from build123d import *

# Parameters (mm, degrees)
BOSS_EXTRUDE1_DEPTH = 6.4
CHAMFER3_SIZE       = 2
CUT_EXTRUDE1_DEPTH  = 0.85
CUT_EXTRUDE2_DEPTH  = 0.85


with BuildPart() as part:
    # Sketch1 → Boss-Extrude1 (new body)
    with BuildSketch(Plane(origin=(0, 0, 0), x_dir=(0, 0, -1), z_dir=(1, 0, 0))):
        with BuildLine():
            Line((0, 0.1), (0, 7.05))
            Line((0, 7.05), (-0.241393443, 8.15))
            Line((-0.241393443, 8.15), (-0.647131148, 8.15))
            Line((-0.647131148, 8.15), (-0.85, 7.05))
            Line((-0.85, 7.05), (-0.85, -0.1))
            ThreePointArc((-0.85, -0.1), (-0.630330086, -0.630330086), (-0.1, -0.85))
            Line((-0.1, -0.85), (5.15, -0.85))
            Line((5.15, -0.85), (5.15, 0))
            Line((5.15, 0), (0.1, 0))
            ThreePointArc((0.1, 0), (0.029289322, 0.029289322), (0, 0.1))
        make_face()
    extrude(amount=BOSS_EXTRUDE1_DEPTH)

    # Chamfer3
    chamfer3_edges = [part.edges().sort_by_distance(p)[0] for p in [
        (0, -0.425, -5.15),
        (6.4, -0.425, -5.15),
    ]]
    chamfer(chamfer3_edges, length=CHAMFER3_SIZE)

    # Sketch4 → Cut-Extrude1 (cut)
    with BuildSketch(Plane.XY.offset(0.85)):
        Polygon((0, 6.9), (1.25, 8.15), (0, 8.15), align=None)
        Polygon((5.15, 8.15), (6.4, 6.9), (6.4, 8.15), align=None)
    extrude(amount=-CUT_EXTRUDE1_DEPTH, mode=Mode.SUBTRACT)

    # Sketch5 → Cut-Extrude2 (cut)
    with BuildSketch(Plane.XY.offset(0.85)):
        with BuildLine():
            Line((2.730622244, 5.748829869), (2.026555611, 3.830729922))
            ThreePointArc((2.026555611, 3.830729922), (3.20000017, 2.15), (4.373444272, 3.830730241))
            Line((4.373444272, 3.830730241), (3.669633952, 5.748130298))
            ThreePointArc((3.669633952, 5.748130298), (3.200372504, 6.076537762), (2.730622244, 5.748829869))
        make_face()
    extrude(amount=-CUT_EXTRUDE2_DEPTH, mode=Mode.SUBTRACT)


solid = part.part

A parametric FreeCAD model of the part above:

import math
import FreeCAD as App
import Part
import Sketcher
from FreeCAD import Vector


def edges_at(feature, points):
    """Names of the edges that pass closest to the given points."""
    edges = feature.Shape.Edges
    near = lambda p: min(range(len(edges)), key=lambda i: edges[i].distToShape(Part.Vertex(*p))[0])
    return sorted({f"Edge{near(p) + 1}" for p in points})

doc = App.newDocument("Part")
body = doc.addObject("PartDesign::Body", "Body")

# Sketch on YZ plane
sketch1 = body.newObject("Sketcher::SketchObject", "Sketch")
sketch1.AttachmentSupport = (doc.getObject("YZ_Plane"), [""])
sketch1.MapMode = "FlatFace"
sketch1.addGeometry([
    Part.LineSegment(Vector(0.1, 0, 0), Vector(7.05, 0, 0)),  # 0
    Part.LineSegment(Vector(7.05, 0, 0), Vector(8.15, 0.24, 0)),  # 1
    Part.LineSegment(Vector(8.15, 0.24, 0), Vector(8.15, 0.65, 0)),  # 2
    Part.LineSegment(Vector(8.15, 0.65, 0), Vector(7.05, 0.85, 0)),  # 3
    Part.LineSegment(Vector(7.05, 0.85, 0), Vector(-0.1, 0.85, 0)),  # 4
    Part.ArcOfCircle(Part.Circle(Vector(-0.1, 0.1, 0), Vector(0, 0, 1), 0.75), math.radians(90), math.radians(180)),  # 5
    Part.LineSegment(Vector(-0.85, 0.1, 0), Vector(-0.85, -5.15, 0)),  # 6
    Part.LineSegment(Vector(-0.85, -5.15, 0), Vector(0, -5.15, 0)),  # 7
    Part.LineSegment(Vector(0, -5.15, 0), Vector(0, -0.1, 0)),  # 8
    Part.ArcOfCircle(Part.Circle(Vector(0.1, -0.1, 0), Vector(0, 0, 1), 0.1), math.radians(90), math.radians(180)),  # 9
], False)
sketch1.addConstraint([
    Sketcher.Constraint("Coincident", 0, 2, 1, 1),
    Sketcher.Constraint("Coincident", 1, 2, 2, 1),
    Sketcher.Constraint("Coincident", 2, 2, 3, 1),
    Sketcher.Constraint("Coincident", 3, 2, 4, 1),
    Sketcher.Constraint("Tangent", 4, 2, 5, 1),
    Sketcher.Constraint("Tangent", 5, 2, 6, 1),
    Sketcher.Constraint("Coincident", 6, 2, 7, 1),
    Sketcher.Constraint("Coincident", 7, 2, 8, 1),
    Sketcher.Constraint("Tangent", 8, 2, 9, 2),
    Sketcher.Constraint("Tangent", 9, 1, 0, 1),
    Sketcher.Constraint("Horizontal", 0),
    Sketcher.Constraint("Vertical", 2),
    Sketcher.Constraint("Horizontal", 4),
    Sketcher.Constraint("Vertical", 6),
    Sketcher.Constraint("Horizontal", 7),
    Sketcher.Constraint("Vertical", 8),
    Sketcher.Constraint("Symmetric", 5, 3, 9, 3, -1, 1),
    Sketcher.Constraint("PointOnObject", 0, 2, -1),
    Sketcher.Constraint("PointOnObject", 7, 2, -2),
    Sketcher.Constraint("Vertical", 0, 2, 3, 2),
    Sketcher.Constraint("Radius", 9, 0.1),
    Sketcher.Constraint("Radius", 5, 0.75),
    Sketcher.Constraint("DistanceY", 6, 2, 4, 2, 6.0),
    Sketcher.Constraint("DistanceX", 0, 1, 0, 2, 6.95),
    Sketcher.Constraint("DistanceX", 0, 2, 1, 2, 1.1),
    Sketcher.Constraint("Distance", 3, 1.118551),
    Sketcher.Constraint("DistanceY", 2, 1, 2, 2, 0.405738),
])
pad1 = body.newObject("PartDesign::Pad", "Pad")
pad1.Profile = sketch1
pad1.Length = 6.4
doc.recompute()

chamfer = body.newObject("PartDesign::Chamfer", "Chamfer")
chamfer.Base = (pad1, edges_at(pad1, [(0, -0.425, -5.15), (6.4, -0.425, -5.15)]))
chamfer.Size = 2

# Sketch on XY plane
sketch2 = body.newObject("Sketcher::SketchObject", "Sketch001")
sketch2.AttachmentSupport = (doc.getObject("XY_Plane"), [""])
sketch2.MapMode = "FlatFace"
sketch2.AttachmentOffset = App.Placement(Vector(0, 0, 0.85), App.Rotation())
sketch2.addGeometry([
    Part.LineSegment(Vector(0, 6.9, 0), Vector(1.2, 8.2, 0)),  # 0
    Part.LineSegment(Vector(1.2, 8.2, 0), Vector(0, 8.2, 0)),  # 1
    Part.LineSegment(Vector(0, 8.2, 0), Vector(0, 6.9, 0)),  # 2
    Part.LineSegment(Vector(5.2, 8.2, 0), Vector(6.4, 6.9, 0)),  # 3
    Part.LineSegment(Vector(6.4, 6.9, 0), Vector(6.4, 8.2, 0)),  # 4
    Part.LineSegment(Vector(6.4, 8.2, 0), Vector(5.2, 8.2, 0)),  # 5
], False)
sketch2.addConstraint([
    Sketcher.Constraint("Coincident", 0, 2, 1, 1),
    Sketcher.Constraint("Coincident", 1, 2, 2, 1),
    Sketcher.Constraint("Coincident", 2, 2, 0, 1),
    Sketcher.Constraint("Coincident", 3, 2, 4, 1),
    Sketcher.Constraint("Coincident", 4, 2, 5, 1),
    Sketcher.Constraint("Coincident", 5, 2, 3, 1),
    Sketcher.Constraint("Horizontal", 1),
    Sketcher.Constraint("Vertical", 2),
    Sketcher.Constraint("Vertical", 4),
    Sketcher.Constraint("Horizontal", 5),
    Sketcher.Constraint("PointOnObject", 1, 2, -2),
    Sketcher.Constraint("Perpendicular", 0, 3),
    Sketcher.Constraint("Horizontal", 2, 2, 3, 2),
    Sketcher.Constraint("Horizontal", 1, 2, 4, 2),
    Sketcher.Constraint("Equal", 1, 5),
    Sketcher.Constraint("DistanceX", 1, 2, 1, 1, 1.25),
    Sketcher.Constraint("DistanceY", -1, 1, 2, 2, 6.9),
    Sketcher.Constraint("DistanceX", -1, 1, 3, 2, 6.4),
])
pocket1 = body.newObject("PartDesign::Pocket", "Pocket")
pocket1.Profile = sketch2
pocket1.Length = 0.85

# Sketch on XY plane
sketch3 = body.newObject("Sketcher::SketchObject", "Sketch002")
sketch3.AttachmentSupport = (doc.getObject("XY_Plane"), [""])
sketch3.MapMode = "FlatFace"
sketch3.AttachmentOffset = App.Placement(Vector(0, 0, 0.85), App.Rotation())
sketch3.addGeometry([
    Part.LineSegment(Vector(2.7, 5.7, 0), Vector(2, 3.8, 0)),
    Part.ArcOfCircle(Part.Circle(Vector(3.2, 3.4, 0), Vector(0, 0, 1), 1.2), math.radians(160), math.radians(380)),
    Part.LineSegment(Vector(4.4, 3.8, 0), Vector(3.7, 5.7, 0)),
    Part.ArcOfCircle(Part.Circle(Vector(3.2, 5.6, 0), Vector(0, 0, 1), 0.5), math.radians(20), math.radians(160)),
], False)
sketch3.addConstraint([
    Sketcher.Constraint("Tangent", 0, 2, 1, 1),
    Sketcher.Constraint("Tangent", 1, 2, 2, 1),
    Sketcher.Constraint("Coincident", 2, 2, 3, 1),
    Sketcher.Constraint("Tangent", 3, 2, 0, 1),
    Sketcher.Constraint("Horizontal", 0, 2, 1, 2),
    Sketcher.Constraint("Radius", 3, 0.5),
    Sketcher.Constraint("Radius", 1, 1.25),
    Sketcher.Constraint("DistanceX", -1, 1, 1, 3, 3.2),
    Sketcher.Constraint("DistanceY", -1, 1, 1, 3, 3.4),
    Sketcher.Constraint("DistanceY", 1, 2, 2, 2, 1.9174),
    Sketcher.Constraint("DistanceY", 2, 2, 3, 2, 0.0007),
])
pocket2 = body.newObject("PartDesign::Pocket", "Pocket001")
pocket2.Profile = sketch3
pocket2.Length = 0.85

doc.recompute()
